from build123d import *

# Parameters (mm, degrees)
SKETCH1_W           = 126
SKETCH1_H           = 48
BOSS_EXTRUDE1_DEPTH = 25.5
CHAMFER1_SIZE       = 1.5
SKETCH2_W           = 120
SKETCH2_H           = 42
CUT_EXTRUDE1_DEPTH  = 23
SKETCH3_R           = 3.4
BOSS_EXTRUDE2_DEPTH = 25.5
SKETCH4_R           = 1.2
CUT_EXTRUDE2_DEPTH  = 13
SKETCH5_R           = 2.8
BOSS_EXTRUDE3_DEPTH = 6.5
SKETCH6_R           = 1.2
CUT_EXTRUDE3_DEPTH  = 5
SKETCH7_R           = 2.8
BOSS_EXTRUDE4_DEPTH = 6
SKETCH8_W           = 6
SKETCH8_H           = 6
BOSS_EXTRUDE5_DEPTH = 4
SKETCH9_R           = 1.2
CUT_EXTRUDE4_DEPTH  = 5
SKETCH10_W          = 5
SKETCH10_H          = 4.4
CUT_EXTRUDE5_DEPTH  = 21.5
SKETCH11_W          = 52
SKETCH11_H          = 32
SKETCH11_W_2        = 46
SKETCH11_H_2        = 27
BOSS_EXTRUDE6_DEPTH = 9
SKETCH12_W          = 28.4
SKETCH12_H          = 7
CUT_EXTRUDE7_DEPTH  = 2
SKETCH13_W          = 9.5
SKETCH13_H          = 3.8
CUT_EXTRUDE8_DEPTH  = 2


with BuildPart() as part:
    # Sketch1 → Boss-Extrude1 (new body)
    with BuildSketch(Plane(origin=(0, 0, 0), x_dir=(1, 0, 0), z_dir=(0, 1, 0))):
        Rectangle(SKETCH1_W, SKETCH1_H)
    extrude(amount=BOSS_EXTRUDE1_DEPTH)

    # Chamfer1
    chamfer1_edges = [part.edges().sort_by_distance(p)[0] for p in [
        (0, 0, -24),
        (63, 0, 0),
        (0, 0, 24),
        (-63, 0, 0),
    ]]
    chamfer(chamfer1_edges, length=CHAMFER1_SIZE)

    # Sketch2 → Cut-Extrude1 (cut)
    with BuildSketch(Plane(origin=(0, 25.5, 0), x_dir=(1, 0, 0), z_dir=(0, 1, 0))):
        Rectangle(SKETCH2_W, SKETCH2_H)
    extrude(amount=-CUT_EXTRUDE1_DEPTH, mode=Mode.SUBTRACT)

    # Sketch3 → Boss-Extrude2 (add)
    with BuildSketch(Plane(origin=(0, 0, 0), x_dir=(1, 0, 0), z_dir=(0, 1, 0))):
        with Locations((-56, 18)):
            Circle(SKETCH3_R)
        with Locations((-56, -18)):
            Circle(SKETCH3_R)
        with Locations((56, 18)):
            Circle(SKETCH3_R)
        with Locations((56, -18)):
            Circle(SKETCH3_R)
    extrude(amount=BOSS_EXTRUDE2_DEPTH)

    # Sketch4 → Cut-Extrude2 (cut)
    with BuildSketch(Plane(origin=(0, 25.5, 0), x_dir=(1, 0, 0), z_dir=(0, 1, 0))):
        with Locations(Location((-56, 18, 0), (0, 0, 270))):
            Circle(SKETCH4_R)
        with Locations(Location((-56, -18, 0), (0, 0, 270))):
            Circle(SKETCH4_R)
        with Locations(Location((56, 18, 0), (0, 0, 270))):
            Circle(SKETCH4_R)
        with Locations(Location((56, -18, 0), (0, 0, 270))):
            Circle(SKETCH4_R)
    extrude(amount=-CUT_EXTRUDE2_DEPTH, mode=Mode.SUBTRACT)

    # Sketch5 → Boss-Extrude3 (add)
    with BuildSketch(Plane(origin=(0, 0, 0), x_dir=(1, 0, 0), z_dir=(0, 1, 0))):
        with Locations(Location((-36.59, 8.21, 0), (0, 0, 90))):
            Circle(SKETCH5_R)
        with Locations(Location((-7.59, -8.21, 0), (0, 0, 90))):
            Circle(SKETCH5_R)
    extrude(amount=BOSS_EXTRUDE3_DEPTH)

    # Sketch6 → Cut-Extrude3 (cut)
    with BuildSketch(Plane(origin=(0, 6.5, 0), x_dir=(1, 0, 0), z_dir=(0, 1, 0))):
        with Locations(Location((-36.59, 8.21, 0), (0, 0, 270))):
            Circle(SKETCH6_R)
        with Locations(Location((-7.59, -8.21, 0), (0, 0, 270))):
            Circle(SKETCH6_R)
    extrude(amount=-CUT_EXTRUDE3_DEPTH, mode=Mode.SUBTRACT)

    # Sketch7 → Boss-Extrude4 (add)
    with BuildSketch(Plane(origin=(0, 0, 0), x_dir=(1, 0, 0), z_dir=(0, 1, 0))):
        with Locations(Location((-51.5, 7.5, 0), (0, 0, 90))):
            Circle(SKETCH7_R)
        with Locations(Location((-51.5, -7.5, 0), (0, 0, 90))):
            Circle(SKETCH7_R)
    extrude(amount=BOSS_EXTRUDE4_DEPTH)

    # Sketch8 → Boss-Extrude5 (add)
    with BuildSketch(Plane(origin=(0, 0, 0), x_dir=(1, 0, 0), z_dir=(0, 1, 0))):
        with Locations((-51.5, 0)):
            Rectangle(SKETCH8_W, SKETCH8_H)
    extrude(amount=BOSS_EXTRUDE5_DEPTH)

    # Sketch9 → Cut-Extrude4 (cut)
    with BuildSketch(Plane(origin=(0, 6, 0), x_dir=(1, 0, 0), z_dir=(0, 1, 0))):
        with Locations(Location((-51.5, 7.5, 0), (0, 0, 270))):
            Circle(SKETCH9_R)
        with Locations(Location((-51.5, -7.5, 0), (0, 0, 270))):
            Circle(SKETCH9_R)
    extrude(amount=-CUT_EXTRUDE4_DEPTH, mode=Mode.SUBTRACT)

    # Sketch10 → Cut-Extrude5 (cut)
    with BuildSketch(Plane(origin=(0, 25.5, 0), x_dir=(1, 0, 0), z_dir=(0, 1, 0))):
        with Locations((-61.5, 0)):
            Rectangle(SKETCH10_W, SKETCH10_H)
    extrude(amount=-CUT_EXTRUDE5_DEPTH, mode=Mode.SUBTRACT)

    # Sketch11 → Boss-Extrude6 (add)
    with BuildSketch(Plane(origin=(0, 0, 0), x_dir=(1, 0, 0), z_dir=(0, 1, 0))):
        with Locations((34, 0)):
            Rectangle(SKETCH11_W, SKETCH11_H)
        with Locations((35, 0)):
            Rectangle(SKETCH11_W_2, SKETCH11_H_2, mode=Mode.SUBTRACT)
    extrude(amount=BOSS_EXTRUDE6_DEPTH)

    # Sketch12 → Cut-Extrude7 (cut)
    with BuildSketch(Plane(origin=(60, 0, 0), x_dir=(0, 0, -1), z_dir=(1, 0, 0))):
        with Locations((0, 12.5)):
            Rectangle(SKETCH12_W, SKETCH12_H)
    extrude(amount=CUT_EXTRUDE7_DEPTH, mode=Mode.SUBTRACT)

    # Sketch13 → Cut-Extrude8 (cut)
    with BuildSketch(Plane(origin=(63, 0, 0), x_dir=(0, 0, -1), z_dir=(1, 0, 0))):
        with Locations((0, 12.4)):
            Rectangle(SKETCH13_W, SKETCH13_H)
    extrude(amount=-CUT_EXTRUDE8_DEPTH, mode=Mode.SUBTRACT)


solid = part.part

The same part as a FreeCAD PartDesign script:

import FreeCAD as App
import Part
import Sketcher


def edges_at(feature, points):
    """Names of the edges that pass closest to the given points."""
    edges = feature.Shape.Edges
    near = lambda p: min(range(len(edges)), key=lambda i: edges[i].distToShape(Part.Vertex(*p))[0])
    return sorted({f"Edge{near(p) + 1}" for p in points})


def add_polygon(sketch, points):
    """Adds a closed chain of lines whose ends are joined by coincident constraints."""
    first, n = sketch.GeometryCount, len(points)
    for a, b in zip(points, points[1:] + points[:1]):
        sketch.addGeometry(Part.LineSegment(App.Vector(*a, 0), App.Vector(*b, 0)), False)
    for i in range(n):
        sketch.addConstraint(Sketcher.Constraint("Coincident", first + i, 2, first + (i + 1) % n, 1))

doc = App.newDocument("Part")
params = doc.addObject("Spreadsheet::Sheet", "Params")
for row, (alias, value) in enumerate([
    ("sketch1_width", "126 mm"),
    ("sketch1_height", "48 mm"),
    ("pad1_length", "25.5 mm"),
    ("chamfer_size", "1.5 mm"),
    ("sketch2_width", "120 mm"),
    ("sketch2_height", "42 mm"),
    ("pocket1_length", "23 mm"),
    ("sketch3_diameter", "6.8 mm"),
    ("pad2_length", "25.5 mm"),
    ("sketch4_diameter", "2.4 mm"),
    ("pocket2_length", "13 mm"),
    ("sketch5_diameter", "5.6 mm"),
    ("pad3_length", "6.5 mm"),
    ("sketch6_diameter", "2.4 mm"),
    ("pocket3_length", "5 mm"),
    ("sketch7_diameter", "5.6 mm"),
    ("pad4_length", "6 mm"),
    ("sketch8_width", "6 mm"),
    ("pad5_length", "4 mm"),
    ("sketch9_diameter", "2.4 mm"),
    ("pocket4_length", "5 mm"),
    ("sketch10_width", "5 mm"),
    ("sketch10_height", "4.4 mm"),
    ("pocket5_length", "21.5 mm"),
    ("sketch11_width", "52 mm"),
    ("sketch11_width2", "46 mm"),
    ("sketch11_height", "32 mm"),
    ("sketch11_height2", "27 mm"),
    ("pad6_length", "9 mm"),
    ("sketch12_width", "7 mm"),
    ("sketch12_height", "28.4 mm"),
    ("pocket6_length", "2 mm"),
    ("sketch13_width", "3.8 mm"),
    ("sketch13_height", "9.5 mm"),
    ("pocket7_length", "2 mm"),
], start=1):
    params.set(f"A{row}", alias)
    params.set(f"B{row}", "=" + value)
    params.setAlias(f"B{row}", alias)

body = doc.addObject("PartDesign::Body", "Body")

# Sketch on XZ plane
sketch1 = body.newObject("Sketcher::SketchObject", "Sketch")
sketch1.AttachmentSupport = (doc.getObject("XZ_Plane"), [""])
sketch1.MapMode = "FlatFace"
add_polygon(sketch1, [(-63, -24), (-63, 24), (63, 24), (63, -24)])  # lines 0-3
sketch1.addConstraint([
    Sketcher.Constraint("Vertical", 0),
    Sketcher.Constraint("Horizontal", 1),
    Sketcher.Constraint("Vertical", 2),
    Sketcher.Constraint("Horizontal", 3),
    Sketcher.Constraint("Symmetric", 0, 2, 2, 2, -1, 1),
    Sketcher.Constraint("DistanceX", 1, 1, 1, 2, 126.0),
    Sketcher.Constraint("DistanceY", 0, 1, 0, 2, 48.0),
])
sketch1.setExpression("Constraints[9]", "Params.sketch1_width")
sketch1.setExpression("Constraints[10]", "Params.sketch1_height")
pad1 = body.newObject("PartDesign::Pad", "Pad")
pad1.Profile = sketch1
pad1.setExpression("Length", "Params.pad1_length")
pad1.Reversed = True
doc.recompute()

chamfer = body.newObject("PartDesign::Chamfer", "Chamfer")
chamfer.Base = (pad1, edges_at(pad1, [
    (0, 0, -24),
    (63, 0, 0),
    (0, 0, 24),
    (-63, 0, 0),
]))
chamfer.setExpression("Size", "Params.chamfer_size")

# Sketch on XZ plane
sketch2 = body.newObject("Sketcher::SketchObject", "Sketch001")
sketch2.AttachmentSupport = (doc.getObject("XZ_Plane"), [""])
sketch2.MapMode = "FlatFace"
sketch2.AttachmentOffset = App.Placement(App.Vector(0, 0, -25.5), App.Rotation())
add_polygon(sketch2, [(-60, -21), (-60, 21), (60, 21), (60, -21)])  # lines 0-3
sketch2.addConstraint([
    Sketcher.Constraint("Vertical", 0),
    Sketcher.Constraint("Horizontal", 1),
    Sketcher.Constraint("Vertical", 2),
    Sketcher.Constraint("Horizontal", 3),
    Sketcher.Constraint("Symmetric", 0, 2, 2, 2, -1, 1),
    Sketcher.Constraint("DistanceX", 1, 1, 1, 2, 120.0),
    Sketcher.Constraint("DistanceY", 0, 1, 0, 2, 42.0),
])
sketch2.setExpression("Constraints[9]", "Params.sketch2_width")
sketch2.setExpression("Constraints[10]", "Params.sketch2_height")
pocket1 = body.newObject("PartDesign::Pocket", "Pocket")
pocket1.Profile = sketch2
pocket1.setExpression("Length", "Params.pocket1_length")
pocket1.Reversed = True

# Sketch on XZ plane
sketch3 = body.newObject("Sketcher::SketchObject", "Sketch002")
sketch3.AttachmentSupport = (doc.getObject("XZ_Plane"), [""])
sketch3.MapMode = "FlatFace"
sketch3.addGeometry([
    Part.Circle(App.Vector(-56, -18, 0), App.Vector(0, 0, 1), 3.4),
    Part.Circle(App.Vector(-56, 18, 0), App.Vector(0, 0, 1), 3.4),
    Part.Circle(App.Vector(56, -18, 0), App.Vector(0, 0, 1), 3.4),
    Part.Circle(App.Vector(56, 18, 0), App.Vector(0, 0, 1), 3.4),
], False)
sketch3.addConstraint([
    Sketcher.Constraint("Equal", 0, 1),
    Sketcher.Constraint("Equal", 1, 2),
    Sketcher.Constraint("Equal", 2, 3),
    Sketcher.Constraint("Symmetric", 1, 3, 2, 3, -1, 1),
    Sketcher.Constraint("Symmetric", 0, 3, 3, 3, -1, 1),
    Sketcher.Constraint("Symmetric", 0, 3, 2, 3, -2),
    Sketcher.Constraint("Diameter", 0, 6.8),
    Sketcher.Constraint("DistanceX", 0, 3, -1, 1, 56.0),
    Sketcher.Constraint("DistanceY", 0, 3, -1, 1, 18.0),
])
sketch3.setExpression("Constraints[6]", "Params.sketch3_diameter")
pad2 = body.newObject("PartDesign::Pad", "Pad001")
pad2.Profile = sketch3
pad2.setExpression("Length", "Params.pad2_length")
pad2.Reversed = True

# Sketch on XZ plane
sketch4 = body.newObject("Sketcher::SketchObject", "Sketch003")
sketch4.AttachmentSupport = (doc.getObject("XZ_Plane"), [""])
sketch4.MapMode = "FlatFace"
sketch4.AttachmentOffset = App.Placement(App.Vector(0, 0, -25.5), App.Rotation())
sketch4.addGeometry([
    Part.Circle(App.Vector(-56, -18, 0), App.Vector(0, 0, 1), 1.2),
    Part.Circle(App.Vector(-56, 18, 0), App.Vector(0, 0, 1), 1.2),
    Part.Circle(App.Vector(56, -18, 0), App.Vector(0, 0, 1), 1.2),
    Part.Circle(App.Vector(56, 18, 0), App.Vector(0, 0, 1), 1.2),
], False)
sketch4.addConstraint([
    Sketcher.Constraint("Equal", 0, 1),
    Sketcher.Constraint("Equal", 1, 2),
    Sketcher.Constraint("Equal", 2, 3),
    Sketcher.Constraint("Symmetric", 1, 3, 2, 3, -1, 1),
    Sketcher.Constraint("Symmetric", 0, 3, 3, 3, -1, 1),
    Sketcher.Constraint("Symmetric", 0, 3, 2, 3, -2),
    Sketcher.Constraint("Diameter", 0, 2.4),
    Sketcher.Constraint("DistanceX", 0, 3, -1, 1, 56.0),
    Sketcher.Constraint("DistanceY", 0, 3, -1, 1, 18.0),
])
sketch4.setExpression("Constraints[6]", "Params.sketch4_diameter")
pocket2 = body.newObject("PartDesign::Pocket", "Pocket001")
pocket2.Profile = sketch4
pocket2.setExpression("Length", "Params.pocket2_length")
pocket2.Reversed = True

# Sketch on XZ plane
sketch5 = body.newObject("Sketcher::SketchObject", "Sketch004")
sketch5.AttachmentSupport = (doc.getObject("XZ_Plane"), [""])
sketch5.MapMode = "FlatFace"
sketch5.addGeometry([
    Part.Circle(App.Vector(-36.6, -8.2, 0), App.Vector(0, 0, 1), 2.8),
    Part.Circle(App.Vector(-7.6, 8.2, 0), App.Vector(0, 0, 1), 2.8),
], False)
sketch5.addConstraint([
    Sketcher.Constraint("Equal", 0, 1),
    Sketcher.Constraint("Diameter", 0, 5.6),
    Sketcher.Constraint("DistanceX", 0, 3, 1, 3, 29.0),
    Sketcher.Constraint("DistanceX", 0, 3, -1, 1, 36.59),
    Sketcher.Constraint("DistanceY", 0, 3, -1, 1, 8.21),
    Sketcher.Constraint("DistanceY", -1, 1, 1, 3, 8.21),
])
sketch5.setExpression("Constraints[1]", "Params.sketch5_diameter")
pad3 = body.newObject("PartDesign::Pad", "Pad002")
pad3.Profile = sketch5
pad3.setExpression("Length", "Params.pad3_length")
pad3.Reversed = True

# Sketch on XZ plane
sketch6 = body.newObject("Sketcher::SketchObject", "Sketch005")
sketch6.AttachmentSupport = (doc.getObject("XZ_Plane"), [""])
sketch6.MapMode = "FlatFace"
sketch6.AttachmentOffset = App.Placement(App.Vector(0, 0, -6.5), App.Rotation())
sketch6.addGeometry([
    Part.Circle(App.Vector(-36.6, -8.2, 0), App.Vector(0, 0, 1), 1.2),
    Part.Circle(App.Vector(-7.6, 8.2, 0), App.Vector(0, 0, 1), 1.2),
], False)
sketch6.addConstraint([
    Sketcher.Constraint("Equal", 0, 1),
    Sketcher.Constraint("Diameter", 0, 2.4),
    Sketcher.Constraint("DistanceX", 0, 3, 1, 3, 29.0),
    Sketcher.Constraint("DistanceX", 0, 3, -1, 1, 36.59),
    Sketcher.Constraint("DistanceY", 0, 3, -1, 1, 8.21),
    Sketcher.Constraint("DistanceY", -1, 1, 1, 3, 8.21),
])
sketch6.setExpression("Constraints[1]", "Params.sketch6_diameter")
pocket3 = body.newObject("PartDesign::Pocket", "Pocket002")
pocket3.Profile = sketch6
pocket3.setExpression("Length", "Params.pocket3_length")
pocket3.Reversed = True

# Sketch on XZ plane
sketch7 = body.newObject("Sketcher::SketchObject", "Sketch006")
sketch7.AttachmentSupport = (doc.getObject("XZ_Plane"), [""])
sketch7.MapMode = "FlatFace"
sketch7.addGeometry([
    Part.Circle(App.Vector(-51.5, -7.5, 0), App.Vector(0, 0, 1), 2.8),
    Part.Circle(App.Vector(-51.5, 7.5, 0), App.Vector(0, 0, 1), 2.8),
], False)
sketch7.addConstraint([
    Sketcher.Constraint("Equal", 0, 1),
    Sketcher.Constraint("Symmetric", 0, 3, 1, 3, -1),
    Sketcher.Constraint("Diameter", 0, 5.6),
    Sketcher.Constraint("DistanceY", 0, 3, 1, 3, 15.0),
    Sketcher.Constraint("DistanceX", 0, 3, -1, 1, 51.5),
])
sketch7.setExpression("Constraints[2]", "Params.sketch7_diameter")
pad4 = body.newObject("PartDesign::Pad", "Pad003")
pad4.Profile = sketch7
pad4.setExpression("Length", "Params.pad4_length")
pad4.Reversed = True

# Sketch on XZ plane
sketch8 = body.newObject("Sketcher::SketchObject", "Sketch007")
sketch8.AttachmentSupport = (doc.getObject("XZ_Plane"), [""])
sketch8.MapMode = "FlatFace"
add_polygon(sketch8, [(-54, -3), (-54, 3), (-48, 3), (-48, -3)])  # lines 0-3
sketch8.addConstraint([
    Sketcher.Constraint("Vertical", 0),
    Sketcher.Constraint("Horizontal", 1),
    Sketcher.Constraint("Vertical", 2),
    Sketcher.Constraint("Horizontal", 3),
    Sketcher.Constraint("Equal", 3, 0),
    Sketcher.Constraint("DistanceX", 1, 1, 1, 2, 6.0),
    Sketcher.Constraint("DistanceY", -1, 1, 0, 2, 3.0),
    Sketcher.Constraint("DistanceX", 0, 2, -1, 1, 54.5),
])
sketch8.setExpression("Constraints[9]", "Params.sketch8_width")
pad5 = body.newObject("PartDesign::Pad", "Pad004")
pad5.Profile = sketch8
pad5.setExpression("Length", "Params.pad5_length")
pad5.Reversed = True

# Sketch on XZ plane
sketch9 = body.newObject("Sketcher::SketchObject", "Sketch008")
sketch9.AttachmentSupport = (doc.getObject("XZ_Plane"), [""])
sketch9.MapMode = "FlatFace"
sketch9.AttachmentOffset = App.Placement(App.Vector(0, 0, -6), App.Rotation())
sketch9.addGeometry([
    Part.Circle(App.Vector(-51.5, -7.5, 0), App.Vector(0, 0, 1), 1.2),
    Part.Circle(App.Vector(-51.5, 7.5, 0), App.Vector(0, 0, 1), 1.2),
], False)
sketch9.addConstraint([
    Sketcher.Constraint("Equal", 0, 1),
    Sketcher.Constraint("Symmetric", 0, 3, 1, 3, -1),
    Sketcher.Constraint("Diameter", 0, 2.4),
    Sketcher.Constraint("DistanceY", 0, 3, 1, 3, 15.0),
    Sketcher.Constraint("DistanceX", 0, 3, -1, 1, 51.5),
])
sketch9.setExpression("Constraints[2]", "Params.sketch9_diameter")
pocket4 = body.newObject("PartDesign::Pocket", "Pocket003")
pocket4.Profile = sketch9
pocket4.setExpression("Length", "Params.pocket4_length")
pocket4.Reversed = True

# Sketch on XZ plane
sketch10 = body.newObject("Sketcher::SketchObject", "Sketch009")
sketch10.AttachmentSupport = (doc.getObject("XZ_Plane"), [""])
sketch10.MapMode = "FlatFace"
sketch10.AttachmentOffset = App.Placement(App.Vector(0, 0, -25.5), App.Rotation())
add_polygon(sketch10, [(-64, -2.2), (-64, 2.2), (-59, 2.2), (-59, -2.2)])  # lines 0-3
sketch10.addConstraint([
    Sketcher.Constraint("Vertical", 0),
    Sketcher.Constraint("Horizontal", 1),
    Sketcher.Constraint("Vertical", 2),
    Sketcher.Constraint("Horizontal", 3),
    Sketcher.Constraint("DistanceX", 1, 1, 1, 2, 5.0),
    Sketcher.Constraint("DistanceY", 0, 1, 0, 2, 4.4),
    Sketcher.Constraint("DistanceX", 0, 2, -1, 1, 64.0),
    Sketcher.Constraint("DistanceY", -1, 1, 0, 2, 2.2),
])
sketch10.setExpression("Constraints[8]", "Params.sketch10_width")
sketch10.setExpression("Constraints[9]", "Params.sketch10_height")
pocket5 = body.newObject("PartDesign::Pocket", "Pocket004")
pocket5.Profile = sketch10
pocket5.setExpression("Length", "Params.pocket5_length")
pocket5.Reversed = True

# Sketch on XZ plane
sketch11 = body.newObject("Sketcher::SketchObject", "Sketch010")
sketch11.AttachmentSupport = (doc.getObject("XZ_Plane"), [""])
sketch11.MapMode = "FlatFace"
add_polygon(sketch11, [(8, -16), (8, 16), (60, 16), (60, -16)])  # lines 0-3
add_polygon(sketch11, [(58, 14), (12, 14), (12, -14), (58, -14)])  # lines 4-7
sketch11.addConstraint([
    Sketcher.Constraint("Vertical", 0),
    Sketcher.Constraint("Horizontal", 1),
    Sketcher.Constraint("Vertical", 2),
    Sketcher.Constraint("Horizontal", 3),
    Sketcher.Constraint("Horizontal", 4),
    Sketcher.Constraint("Vertical", 5),
    Sketcher.Constraint("Horizontal", 6),
    Sketcher.Constraint("Vertical", 7),
    Sketcher.Constraint("DistanceX", 1, 1, 1, 2, 52.0),
    Sketcher.Constraint("DistanceX", 4, 2, 4, 1, 46.0),
    Sketcher.Constraint("DistanceY", 0, 1, 0, 2, 32.0),
    Sketcher.Constraint("DistanceY", 5, 2, 5, 1, 27.0),
    Sketcher.Constraint("DistanceX", -1, 1, 0, 2, 8.0),
    Sketcher.Constraint("DistanceY", -1, 1, 0, 2, 16.0),
    Sketcher.Constraint("DistanceX", -1, 1, 4, 2, 12.0),
    Sketcher.Constraint("DistanceY", -1, 1, 4, 2, 13.5),
])
sketch11.setExpression("Constraints[16]", "Params.sketch11_width")
sketch11.setExpression("Constraints[17]", "Params.sketch11_width2")
sketch11.setExpression("Constraints[18]", "Params.sketch11_height")
sketch11.setExpression("Constraints[19]", "Params.sketch11_height2")
pad6 = body.newObject("PartDesign::Pad", "Pad005")
pad6.Profile = sketch11
pad6.setExpression("Length", "Params.pad6_length")
pad6.Reversed = True

# Sketch on YZ plane
sketch12 = body.newObject("Sketcher::SketchObject", "Sketch011")
sketch12.AttachmentSupport = (doc.getObject("YZ_Plane"), [""])
sketch12.MapMode = "FlatFace"
sketch12.AttachmentOffset = App.Placement(App.Vector(0, 0, 60), App.Rotation())
add_polygon(sketch12, [(16, 14), (9, 14), (9, -14), (16, -14)])  # lines 0-3
sketch12.addConstraint([
    Sketcher.Constraint("Horizontal", 0),
    Sketcher.Constraint("Vertical", 1),
    Sketcher.Constraint("Horizontal", 2),
    Sketcher.Constraint("Vertical", 3),
    Sketcher.Constraint("DistanceX", 0, 2, 0, 1, 7.0),
    Sketcher.Constraint("DistanceY", 1, 2, 1, 1, 28.4),
    Sketcher.Constraint("DistanceX", -1, 1, 0, 2, 9.0),
    Sketcher.Constraint("DistanceY", -1, 1, 0, 2, 14.2),
])
sketch12.setExpression("Constraints[8]", "Params.sketch12_width")
sketch12.setExpression("Constraints[9]", "Params.sketch12_height")
pocket6 = body.newObject("PartDesign::Pocket", "Pocket005")
pocket6.Profile = sketch12
pocket6.setExpression("Length", "Params.pocket6_length")
pocket6.Reversed = True

# Sketch on YZ plane
sketch13 = body.newObject("Sketcher::SketchObject", "Sketch012")
sketch13.AttachmentSupport = (doc.getObject("YZ_Plane"), [""])
sketch13.MapMode = "FlatFace"
sketch13.AttachmentOffset = App.Placement(App.Vector(0, 0, 63), App.Rotation())
add_polygon(sketch13, [(14.3, 4.8), (10.5, 4.8), (10.5, -4.8), (14.3, -4.8)])  # lines 0-3
sketch13.addConstraint([
    Sketcher.Constraint("Horizontal", 0),
    Sketcher.Constraint("Vertical", 1),
    Sketcher.Constraint("Horizontal", 2),
    Sketcher.Constraint("Vertical", 3),
    Sketcher.Constraint("DistanceX", 0, 2, 0, 1, 3.8),
    Sketcher.Constraint("DistanceY", 1, 2, 1, 1, 9.5),
    Sketcher.Constraint("DistanceX", -1, 1, 0, 2, 10.5),
    Sketcher.Constraint("DistanceY", -1, 1, 0, 2, 4.75),
])
sketch13.setExpression("Constraints[8]", "Params.sketch13_width")
sketch13.setExpression("Constraints[9]", "Params.sketch13_height")
pocket7 = body.newObject("PartDesign::Pocket", "Pocket006")
pocket7.Profile = sketch13
pocket7.setExpression("Length", "Params.pocket7_length")

doc.recompute()
